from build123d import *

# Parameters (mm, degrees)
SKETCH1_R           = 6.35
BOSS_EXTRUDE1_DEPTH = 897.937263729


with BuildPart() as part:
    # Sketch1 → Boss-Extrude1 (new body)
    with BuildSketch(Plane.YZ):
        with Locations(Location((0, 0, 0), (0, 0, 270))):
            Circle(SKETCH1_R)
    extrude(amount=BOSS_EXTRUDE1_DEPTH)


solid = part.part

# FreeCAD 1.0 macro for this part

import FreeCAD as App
import Part
import Sketcher
Q = App.Units.Quantity

doc = App.newDocument("Part")
body = doc.addObject("PartDesign::Body", "Body")

# Sketch on YZ plane
sketch1 = body.newObject("Sketcher::SketchObject", "Sketch")
sketch1.AttachmentSupport = (doc.getObject("YZ_Plane"), [""])
sketch1.MapMode = "FlatFace"
sketch1.addGeometry(Part.Circle(App.Vector(0, 0, 0), App.Vector(0, 0, 1), 6), False)
sketch1.addConstraint([
    Sketcher.Constraint("Coincident", 0, 3, -1, 1),
    Sketcher.Constraint("Diameter", 0, Q("0.5 in")),
])
pad1 = body.newObject("PartDesign::Pad", "Pad")
pad1.Profile = sketch1
pad1.Length = 897.937264

doc.recompute()
